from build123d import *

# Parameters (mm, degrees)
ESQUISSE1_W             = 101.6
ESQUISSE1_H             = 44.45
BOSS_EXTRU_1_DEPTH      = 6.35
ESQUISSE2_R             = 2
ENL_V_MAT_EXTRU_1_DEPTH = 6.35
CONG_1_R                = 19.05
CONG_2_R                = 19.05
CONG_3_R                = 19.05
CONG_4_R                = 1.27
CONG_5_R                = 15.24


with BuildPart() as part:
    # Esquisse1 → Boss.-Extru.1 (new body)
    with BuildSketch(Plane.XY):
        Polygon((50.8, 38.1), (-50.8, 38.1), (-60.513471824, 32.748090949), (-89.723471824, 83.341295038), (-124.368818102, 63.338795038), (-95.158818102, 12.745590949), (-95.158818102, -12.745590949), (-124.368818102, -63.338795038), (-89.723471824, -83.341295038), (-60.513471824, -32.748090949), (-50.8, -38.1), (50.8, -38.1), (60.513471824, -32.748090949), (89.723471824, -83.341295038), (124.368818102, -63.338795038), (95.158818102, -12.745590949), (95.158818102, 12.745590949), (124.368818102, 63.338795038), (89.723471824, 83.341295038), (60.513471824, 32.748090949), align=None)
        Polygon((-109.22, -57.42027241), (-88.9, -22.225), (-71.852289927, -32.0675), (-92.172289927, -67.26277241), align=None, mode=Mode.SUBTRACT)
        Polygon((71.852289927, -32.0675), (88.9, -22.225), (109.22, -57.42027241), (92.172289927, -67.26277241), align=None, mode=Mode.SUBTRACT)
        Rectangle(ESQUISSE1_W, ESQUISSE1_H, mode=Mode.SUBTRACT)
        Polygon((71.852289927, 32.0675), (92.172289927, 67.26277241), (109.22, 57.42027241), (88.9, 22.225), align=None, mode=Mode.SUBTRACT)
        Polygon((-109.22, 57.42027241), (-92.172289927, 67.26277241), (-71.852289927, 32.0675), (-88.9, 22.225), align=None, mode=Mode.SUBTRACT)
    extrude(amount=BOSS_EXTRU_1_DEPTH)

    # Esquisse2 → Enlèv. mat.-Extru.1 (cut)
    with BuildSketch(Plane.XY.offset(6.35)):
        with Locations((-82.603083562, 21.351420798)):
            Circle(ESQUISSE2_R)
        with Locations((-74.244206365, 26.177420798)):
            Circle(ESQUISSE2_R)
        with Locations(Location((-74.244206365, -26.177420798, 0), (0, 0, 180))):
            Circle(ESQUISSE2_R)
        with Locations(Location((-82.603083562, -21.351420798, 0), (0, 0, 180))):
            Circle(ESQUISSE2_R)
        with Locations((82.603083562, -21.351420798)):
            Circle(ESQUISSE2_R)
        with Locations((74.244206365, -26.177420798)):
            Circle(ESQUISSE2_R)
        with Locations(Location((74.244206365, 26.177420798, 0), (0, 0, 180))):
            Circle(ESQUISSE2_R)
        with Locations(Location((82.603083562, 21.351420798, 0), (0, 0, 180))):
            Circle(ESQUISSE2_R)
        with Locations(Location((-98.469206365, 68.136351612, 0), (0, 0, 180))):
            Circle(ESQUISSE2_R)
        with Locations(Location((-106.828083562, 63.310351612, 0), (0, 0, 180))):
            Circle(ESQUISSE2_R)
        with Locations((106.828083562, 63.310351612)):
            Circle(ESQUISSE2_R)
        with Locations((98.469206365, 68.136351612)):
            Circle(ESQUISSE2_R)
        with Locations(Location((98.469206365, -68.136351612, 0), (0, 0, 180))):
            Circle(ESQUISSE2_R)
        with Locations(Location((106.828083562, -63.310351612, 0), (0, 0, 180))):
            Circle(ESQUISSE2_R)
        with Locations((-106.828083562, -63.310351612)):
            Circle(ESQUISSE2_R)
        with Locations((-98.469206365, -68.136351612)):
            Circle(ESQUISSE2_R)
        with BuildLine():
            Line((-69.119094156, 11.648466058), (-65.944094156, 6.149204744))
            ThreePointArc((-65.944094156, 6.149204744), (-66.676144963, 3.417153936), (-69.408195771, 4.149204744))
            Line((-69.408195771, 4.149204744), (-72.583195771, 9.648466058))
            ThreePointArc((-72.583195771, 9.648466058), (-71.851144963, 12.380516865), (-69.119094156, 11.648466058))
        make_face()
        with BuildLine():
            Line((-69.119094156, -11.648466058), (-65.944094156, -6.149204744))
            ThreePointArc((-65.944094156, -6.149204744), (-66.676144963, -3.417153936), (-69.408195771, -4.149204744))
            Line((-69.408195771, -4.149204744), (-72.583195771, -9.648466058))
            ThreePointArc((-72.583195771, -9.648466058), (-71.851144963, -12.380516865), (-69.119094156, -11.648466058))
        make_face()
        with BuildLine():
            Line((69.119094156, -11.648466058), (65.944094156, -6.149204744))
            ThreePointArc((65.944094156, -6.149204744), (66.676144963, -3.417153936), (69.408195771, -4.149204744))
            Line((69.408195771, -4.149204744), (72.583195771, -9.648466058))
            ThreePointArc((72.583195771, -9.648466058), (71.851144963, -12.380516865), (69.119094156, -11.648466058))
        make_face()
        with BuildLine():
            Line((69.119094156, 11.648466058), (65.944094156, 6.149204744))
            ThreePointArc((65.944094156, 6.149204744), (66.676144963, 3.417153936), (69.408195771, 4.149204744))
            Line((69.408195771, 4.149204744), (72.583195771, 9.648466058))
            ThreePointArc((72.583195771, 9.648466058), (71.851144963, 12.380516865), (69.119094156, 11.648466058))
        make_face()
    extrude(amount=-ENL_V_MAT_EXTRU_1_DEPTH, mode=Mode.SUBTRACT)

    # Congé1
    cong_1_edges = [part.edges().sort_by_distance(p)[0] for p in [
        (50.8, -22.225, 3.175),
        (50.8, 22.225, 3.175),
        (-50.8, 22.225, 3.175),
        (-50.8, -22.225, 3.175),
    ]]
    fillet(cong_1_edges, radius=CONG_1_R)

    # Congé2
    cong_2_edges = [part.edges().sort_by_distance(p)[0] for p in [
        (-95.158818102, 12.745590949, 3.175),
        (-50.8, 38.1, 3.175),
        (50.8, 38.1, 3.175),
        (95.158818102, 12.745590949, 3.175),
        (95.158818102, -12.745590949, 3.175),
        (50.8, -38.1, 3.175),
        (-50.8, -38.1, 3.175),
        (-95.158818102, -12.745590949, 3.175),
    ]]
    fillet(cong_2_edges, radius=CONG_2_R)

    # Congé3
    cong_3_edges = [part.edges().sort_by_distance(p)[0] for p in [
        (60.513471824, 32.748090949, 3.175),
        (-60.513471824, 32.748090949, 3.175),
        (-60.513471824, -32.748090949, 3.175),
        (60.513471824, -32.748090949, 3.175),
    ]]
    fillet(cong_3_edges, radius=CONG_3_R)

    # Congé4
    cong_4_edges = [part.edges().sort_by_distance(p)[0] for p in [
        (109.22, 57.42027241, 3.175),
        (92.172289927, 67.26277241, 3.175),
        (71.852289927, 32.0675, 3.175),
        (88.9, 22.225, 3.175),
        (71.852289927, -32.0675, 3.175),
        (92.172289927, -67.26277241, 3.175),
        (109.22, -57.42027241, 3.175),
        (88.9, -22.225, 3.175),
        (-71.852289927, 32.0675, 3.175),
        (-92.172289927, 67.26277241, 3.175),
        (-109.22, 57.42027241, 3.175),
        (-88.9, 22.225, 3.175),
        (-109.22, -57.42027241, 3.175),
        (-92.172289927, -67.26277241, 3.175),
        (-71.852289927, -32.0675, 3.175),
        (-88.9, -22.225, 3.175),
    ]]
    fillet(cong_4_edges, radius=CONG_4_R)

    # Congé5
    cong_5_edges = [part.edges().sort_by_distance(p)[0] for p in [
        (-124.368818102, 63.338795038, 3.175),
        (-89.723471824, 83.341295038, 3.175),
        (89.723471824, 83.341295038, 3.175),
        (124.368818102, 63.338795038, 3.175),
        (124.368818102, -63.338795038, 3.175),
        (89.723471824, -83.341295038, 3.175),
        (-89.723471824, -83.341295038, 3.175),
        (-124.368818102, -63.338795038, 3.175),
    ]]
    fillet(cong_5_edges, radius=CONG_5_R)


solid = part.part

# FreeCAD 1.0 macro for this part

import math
import FreeCAD as App
import Part
import Sketcher

V = App.Vector
Q = App.Units.Quantity


def edges_at(feature, points):
    """Names of the edges that pass closest to the given points."""
    edges = feature.Shape.Edges
    near = lambda p: min(range(len(edges)), key=lambda i: edges[i].distToShape(Part.Vertex(*p))[0])
    return sorted({f"Edge{near(p) + 1}" for p in points})

doc = App.newDocument("Part")
body = doc.addObject("PartDesign::Body", "Body")

sketch1 = body.newObject("Sketcher::SketchObject", "Sketch")
sketch1.AttachmentSupport = (doc.getObject("XY_Plane"), [""])
sketch1.MapMode = "FlatFace"
sketch1.addGeometry(Part.LineSegment(V(50.8, 38.1, 0), V(-50.8, 38.1, 0)), False)
sketch1.addGeometry(Part.LineSegment(V(-50.8, 38.1, 0), V(-60.513472, 32.748091, 0)), False)
sketch1.addGeometry(Part.LineSegment(V(-60.513472, 32.748091, 0), V(-89.723472, 83.341295, 0)), False)
sketch1.addGeometry(Part.LineSegment(V(-89.723472, 83.341295, 0), V(-124.368818, 63.338795, 0)), False)
sketch1.addGeometry(Part.LineSegment(V(-124.368818, 63.338795, 0), V(-95.158818, 12.745591, 0)), False)
sketch1.addGeometry(Part.LineSegment(V(-95.158818, 12.745591, 0), V(-95.158818, -12.745591, 0)), False)
sketch1.addGeometry(Part.LineSegment(V(-95.158818, -12.745591, 0), V(-124.368818, -63.338795, 0)), False)
sketch1.addGeometry(Part.LineSegment(V(-124.368818, -63.338795, 0), V(-89.723472, -83.341295, 0)), False)
sketch1.addGeometry(Part.LineSegment(V(-89.723472, -83.341295, 0), V(-60.513472, -32.748091, 0)), False)
sketch1.addGeometry(Part.LineSegment(V(-60.513472, -32.748091, 0), V(-50.8, -38.1, 0)), False)
sketch1.addGeometry(Part.LineSegment(V(-50.8, -38.1, 0), V(50.8, -38.1, 0)), False)
sketch1.addGeometry(Part.LineSegment(V(50.8, -38.1, 0), V(60.513472, -32.748091, 0)), False)
sketch1.addGeometry(Part.LineSegment(V(60.513472, -32.748091, 0), V(89.723472, -83.341295, 0)), False)
sketch1.addGeometry(Part.LineSegment(V(89.723472, -83.341295, 0), V(124.368818, -63.338795, 0)), False)
sketch1.addGeometry(Part.LineSegment(V(124.368818, -63.338795, 0), V(95.158818, -12.745591, 0)), False)
sketch1.addGeometry(Part.LineSegment(V(95.158818, -12.745591, 0), V(95.158818, 12.745591, 0)), False)
sketch1.addGeometry(Part.LineSegment(V(95.158818, 12.745591, 0), V(124.368818, 63.338795, 0)), False)
sketch1.addGeometry(Part.LineSegment(V(124.368818, 63.338795, 0), V(89.723472, 83.341295, 0)), False)
sketch1.addGeometry(Part.LineSegment(V(89.723472, 83.341295, 0), V(60.513472, 32.748091, 0)), False)
sketch1.addGeometry(Part.LineSegment(V(60.513472, 32.748091, 0), V(50.8, 38.1, 0)), False)
sketch1.addGeometry(Part.LineSegment(V(-92.17229, -67.262772, 0), V(-109.22, -57.420272, 0)), False)
sketch1.addGeometry(Part.LineSegment(V(-109.22, -57.420272, 0), V(-88.9, -22.225, 0)), False)
sketch1.addGeometry(Part.LineSegment(V(-88.9, -22.225, 0), V(-71.85229, -32.0675, 0)), False)
sketch1.addGeometry(Part.LineSegment(V(-71.85229, -32.0675, 0), V(-92.17229, -67.262772, 0)), False)
sketch1.addGeometry(Part.LineSegment(V(92.17229, -67.262772, 0), V(71.85229, -32.0675, 0)), False)
sketch1.addGeometry(Part.LineSegment(V(71.85229, -32.0675, 0), V(88.9, -22.225, 0)), False)
sketch1.addGeometry(Part.LineSegment(V(88.9, -22.225, 0), V(109.22, -57.420272, 0)), False)
sketch1.addGeometry(Part.LineSegment(V(109.22, -57.420272, 0), V(92.17229, -67.262772, 0)), False)
sketch1.addGeometry(Part.LineSegment(V(-88.9, 22.225, 0), V(-109.22, 57.420272, 0)), False)
sketch1.addGeometry(Part.LineSegment(V(-109.22, 57.420272, 0), V(-92.17229, 67.262772, 0)), False)
sketch1.addGeometry(Part.LineSegment(V(-92.17229, 67.262772, 0), V(-71.85229, 32.0675, 0)), False)
sketch1.addGeometry(Part.LineSegment(V(-71.85229, 32.0675, 0), V(-88.9, 22.225, 0)), False)
sketch1.addGeometry(Part.LineSegment(V(50.8, -22.225, 0), V(-50.8, -22.225, 0)), False)
sketch1.addGeometry(Part.LineSegment(V(-50.8, -22.225, 0), V(-50.8, 22.225, 0)), False)
sketch1.addGeometry(Part.LineSegment(V(-50.8, 22.225, 0), V(50.8, 22.225, 0)), False)
sketch1.addGeometry(Part.LineSegment(V(50.8, 22.225, 0), V(50.8, -22.225, 0)), False)
sketch1.addGeometry(Part.LineSegment(V(88.9, 22.225, 0), V(71.85229, 32.0675, 0)), False)
sketch1.addGeometry(Part.LineSegment(V(71.85229, 32.0675, 0), V(92.17229, 67.262772, 0)), False)
sketch1.addGeometry(Part.LineSegment(V(92.17229, 67.262772, 0), V(109.22, 57.420272, 0)), False)
sketch1.addGeometry(Part.LineSegment(V(109.22, 57.420272, 0), V(88.9, 22.225, 0)), False)
sketch1.addConstraint(Sketcher.Constraint("Coincident", 0, 2, 1, 1))
sketch1.addConstraint(Sketcher.Constraint("Coincident", 1, 2, 2, 1))
sketch1.addConstraint(Sketcher.Constraint("Coincident", 2, 2, 3, 1))
sketch1.addConstraint(Sketcher.Constraint("Coincident", 3, 2, 4, 1))
sketch1.addConstraint(Sketcher.Constraint("Coincident", 4, 2, 5, 1))
sketch1.addConstraint(Sketcher.Constraint("Coincident", 5, 2, 6, 1))
sketch1.addConstraint(Sketcher.Constraint("Coincident", 6, 2, 7, 1))
sketch1.addConstraint(Sketcher.Constraint("Coincident", 7, 2, 8, 1))
sketch1.addConstraint(Sketcher.Constraint("Coincident", 8, 2, 9, 1))
sketch1.addConstraint(Sketcher.Constraint("Coincident", 9, 2, 10, 1))
sketch1.addConstraint(Sketcher.Constraint("Coincident", 10, 2, 11, 1))
sketch1.addConstraint(Sketcher.Constraint("Coincident", 11, 2, 12, 1))
sketch1.addConstraint(Sketcher.Constraint("Coincident", 12, 2, 13, 1))
sketch1.addConstraint(Sketcher.Constraint("Coincident", 13, 2, 14, 1))
sketch1.addConstraint(Sketcher.Constraint("Coincident", 14, 2, 15, 1))
sketch1.addConstraint(Sketcher.Constraint("Coincident", 15, 2, 16, 1))
sketch1.addConstraint(Sketcher.Constraint("Coincident", 16, 2, 17, 1))
sketch1.addConstraint(Sketcher.Constraint("Coincident", 17, 2, 18, 1))
sketch1.addConstraint(Sketcher.Constraint("Coincident", 18, 2, 19, 1))
sketch1.addConstraint(Sketcher.Constraint("Coincident", 19, 2, 0, 1))
sketch1.addConstraint(Sketcher.Constraint("Coincident", 20, 2, 21, 1))
sketch1.addConstraint(Sketcher.Constraint("Coincident", 21, 2, 22, 1))
sketch1.addConstraint(Sketcher.Constraint("Coincident", 22, 2, 23, 1))
sketch1.addConstraint(Sketcher.Constraint("Coincident", 23, 2, 20, 1))
sketch1.addConstraint(Sketcher.Constraint("Coincident", 24, 2, 25, 1))
sketch1.addConstraint(Sketcher.Constraint("Coincident", 25, 2, 26, 1))
sketch1.addConstraint(Sketcher.Constraint("Coincident", 26, 2, 27, 1))
sketch1.addConstraint(Sketcher.Constraint("Coincident", 27, 2, 24, 1))
sketch1.addConstraint(Sketcher.Constraint("Coincident", 28, 2, 29, 1))
sketch1.addConstraint(Sketcher.Constraint("Coincident", 29, 2, 30, 1))
sketch1.addConstraint(Sketcher.Constraint("Coincident", 30, 2, 31, 1))
sketch1.addConstraint(Sketcher.Constraint("Coincident", 31, 2, 28, 1))
sketch1.addConstraint(Sketcher.Constraint("Coincident", 32, 2, 33, 1))
sketch1.addConstraint(Sketcher.Constraint("Coincident", 33, 2, 34, 1))
sketch1.addConstraint(Sketcher.Constraint("Coincident", 34, 2, 35, 1))
sketch1.addConstraint(Sketcher.Constraint("Coincident", 35, 2, 32, 1))
sketch1.addConstraint(Sketcher.Constraint("Coincident", 36, 2, 37, 1))
sketch1.addConstraint(Sketcher.Constraint("Coincident", 37, 2, 38, 1))
sketch1.addConstraint(Sketcher.Constraint("Coincident", 38, 2, 39, 1))
sketch1.addConstraint(Sketcher.Constraint("Coincident", 39, 2, 36, 1))
sketch1.addConstraint(Sketcher.Constraint("Horizontal", 0))
sketch1.addConstraint(Sketcher.Constraint("Vertical", 5))
sketch1.addConstraint(Sketcher.Constraint("Horizontal", 10))
sketch1.addConstraint(Sketcher.Constraint("Vertical", 15))
sketch1.addConstraint(Sketcher.Constraint("Horizontal", 32))
sketch1.addConstraint(Sketcher.Constraint("Vertical", 33))
sketch1.addConstraint(Sketcher.Constraint("Horizontal", 34))
sketch1.addConstraint(Sketcher.Constraint("Vertical", 35))
sketch1.addConstraint(Sketcher.Constraint("Symmetric", 0, 2, 10, 2, -1, 1))
sketch1.addConstraint(Sketcher.Constraint("Symmetric", 1, 2, 11, 2, -1, 1))
sketch1.addConstraint(Sketcher.Constraint("Symmetric", 2, 2, 12, 2, -1, 1))
sketch1.addConstraint(Sketcher.Constraint("Symmetric", 3, 2, 13, 2, -1, 1))
sketch1.addConstraint(Sketcher.Constraint("Symmetric", 4, 2, 14, 2, -1, 1))
sketch1.addConstraint(Sketcher.Constraint("Symmetric", 6, 2, 16, 2, -1, 1))
sketch1.addConstraint(Sketcher.Constraint("Symmetric", 7, 2, 17, 2, -1, 1))
sketch1.addConstraint(Sketcher.Constraint("Symmetric", 8, 2, 18, 2, -1, 1))
sketch1.addConstraint(Sketcher.Constraint("Symmetric", 26, 2, 28, 2, -1, 1))
sketch1.addConstraint(Sketcher.Constraint("Symmetric", 27, 2, 29, 2, -1, 1))
sketch1.addConstraint(Sketcher.Constraint("Symmetric", 24, 2, 30, 2, -1, 1))
sketch1.addConstraint(Sketcher.Constraint("Symmetric", 25, 2, 31, 2, -1, 1))
sketch1.addConstraint(Sketcher.Constraint("Symmetric", 32, 2, 34, 2, -1, 1))
sketch1.addConstraint(Sketcher.Constraint("Symmetric", 22, 2, 36, 2, -1, 1))
sketch1.addConstraint(Sketcher.Constraint("Symmetric", 23, 2, 37, 2, -1, 1))
sketch1.addConstraint(Sketcher.Constraint("Symmetric", 20, 2, 38, 2, -1, 1))
sketch1.addConstraint(Sketcher.Constraint("Symmetric", 21, 2, 39, 2, -1, 1))
sketch1.addConstraint(Sketcher.Constraint("Symmetric", 8, 2, 11, 2, -2))
sketch1.addConstraint(Sketcher.Constraint("Symmetric", 7, 2, 12, 2, -2))
sketch1.addConstraint(Sketcher.Constraint("Symmetric", 6, 2, 13, 2, -2))
sketch1.addConstraint(Sketcher.Constraint("Symmetric", 22, 2, 24, 2, -2))
sketch1.addConstraint(Sketcher.Constraint("Symmetric", 21, 2, 25, 2, -2))
sketch1.addConstraint(Sketcher.Constraint("Symmetric", 20, 2, 26, 2, -2))
sketch1.addConstraint(Sketcher.Constraint("Symmetric", 23, 2, 27, 2, -2))
sketch1.addConstraint(Sketcher.Constraint("Perpendicular", 2, 3))
sketch1.addConstraint(Sketcher.Constraint("Perpendicular", 3, 4))
sketch1.addConstraint(Sketcher.Constraint("Perpendicular", 6, 7))
sketch1.addConstraint(Sketcher.Constraint("Parallel", 8, 16))
sketch1.addConstraint(Sketcher.Constraint("Parallel", 9, 19))
sketch1.addConstraint(Sketcher.Constraint("Perpendicular", 18, 20))
sketch1.addConstraint(Sketcher.Constraint("Perpendicular", 20, 21))
sketch1.addConstraint(Sketcher.Constraint("Perpendicular", 21, 22))
sketch1.addConstraint(Sketcher.Constraint("Perpendicular", 22, 23))
sketch1.addConstraint(Sketcher.Constraint("Horizontal", 25, 2, 32, 2))
sketch1.addConstraint(Sketcher.Constraint("Vertical", 0, 2, 9, 2))
sketch1.addConstraint(Sketcher.Constraint("Vertical", 9, 2, 32, 2))
sketch1.addConstraint(Sketcher.Constraint("Equal", 2, 4))
sketch1.addConstraint(Sketcher.Constraint("DistanceX", 0, 2, 0, 1, Q("4 in")))
sketch1.addConstraint(Sketcher.Constraint("Angle", 2, Q("120 deg")))
sketch1.addConstraint(Sketcher.Constraint("DistanceY", 10, 2, 0, 2, Q("3 in")))
sketch1.addConstraint(Sketcher.Constraint("Distance", 2, Q("2.3 in")))
sketch1.addConstraint(Sketcher.Constraint("Distance", 21, Q("1.6 in")))
sketch1.addConstraint(Sketcher.Constraint("DistanceY", 33, 1, 33, 2, Q("1.75 in")))
sketch1.addConstraint(Sketcher.Constraint("DistanceX", 20, 2, -1, 1, Q("4.3 in")))
sketch1.addConstraint(Sketcher.Constraint("Distance", 3, Q("1.575 in")))
sketch1.addConstraint(Sketcher.Constraint("Distance", 20, Q("0.775 in")))
sketch1.addConstraint(Sketcher.Constraint("DistanceY", 5, 2, 5, 1, Q("25.491182 mm")))
sketch1.addConstraint(Sketcher.Constraint("DistanceX", 1, 2, -1, 1, Q("60.513472 mm")))
pad1 = body.newObject("PartDesign::Pad", "Pad")
pad1.Profile = sketch1
pad1.Length = Q("0.25 in")

sketch2 = body.newObject("Sketcher::SketchObject", "Sketch001")
sketch2.AttachmentSupport = (doc.getObject("XY_Plane"), [""])
sketch2.MapMode = "FlatFace"
sketch2.AttachmentOffset = App.Placement(V(0, 0, 0.25 * 25.4), App.Rotation())
sketch2.addGeometry(Part.Circle(V(-82.603084, 21.351421, 0), V(0, 0, 1), 2), False)
sketch2.addGeometry(Part.Circle(V(-74.244206, 26.177421, 0), V(0, 0, 1), 2), False)
sketch2.addGeometry(Part.Circle(V(-74.244206, -26.177421, 0), V(0, 0, 1), 2), False)
sketch2.addGeometry(Part.Circle(V(-82.603084, -21.351421, 0), V(0, 0, 1), 2), False)
sketch2.addGeometry(Part.Circle(V(82.603084, -21.351421, 0), V(0, 0, 1), 2), False)
sketch2.addGeometry(Part.Circle(V(74.244206, -26.177421, 0), V(0, 0, 1), 2), False)
sketch2.addGeometry(Part.Circle(V(74.244206, 26.177421, 0), V(0, 0, 1), 2), False)
sketch2.addGeometry(Part.Circle(V(82.603084, 21.351421, 0), V(0, 0, 1), 2), False)
sketch2.addGeometry(Part.Circle(V(-98.469206, 68.136352, 0), V(0, 0, 1), 2), False)
sketch2.addGeometry(Part.Circle(V(-106.828084, 63.310352, 0), V(0, 0, 1), 2), False)
sketch2.addGeometry(Part.Circle(V(106.828084, 63.310352, 0), V(0, 0, 1), 2), False)
sketch2.addGeometry(Part.Circle(V(98.469206, 68.136352, 0), V(0, 0, 1), 2), False)
sketch2.addGeometry(Part.Circle(V(98.469206, -68.136352, 0), V(0, 0, 1), 2), False)
sketch2.addGeometry(Part.Circle(V(106.828084, -63.310352, 0), V(0, 0, 1), 2), False)
sketch2.addGeometry(Part.Circle(V(-106.828084, -63.310352, 0), V(0, 0, 1), 2), False)
sketch2.addGeometry(Part.Circle(V(-98.469206, -68.136352, 0), V(0, 0, 1), 2), False)
sketch2.addGeometry(Part.LineSegment(V(-65.944094, 6.149205, 0), V(-69.119094, 11.648466, 0)), False)
sketch2.addGeometry(Part.ArcOfCircle(Part.Circle(V(-70.851145, 10.648466, 0), V(0, 0, 1), 2), math.radians(30), math.radians(210)), False)
sketch2.addGeometry(Part.LineSegment(V(-72.583196, 9.648466, 0), V(-69.408196, 4.149205, 0)), False)
sketch2.addGeometry(Part.ArcOfCircle(Part.Circle(V(-67.676145, 5.149205, 0), V(0, 0, 1), 2), math.radians(-150), math.radians(30)), False)
sketch2.addGeometry(Part.LineSegment(V(-69.119094, -11.648466, 0), V(-65.944094, -6.149205, 0)), False)
sketch2.addGeometry(Part.ArcOfCircle(Part.Circle(V(-67.676145, -5.149205, 0), V(0, 0, 1), 2), math.radians(-30), math.radians(150)), False)
sketch2.addGeometry(Part.LineSegment(V(-69.408196, -4.149205, 0), V(-72.583196, -9.648466, 0)), False)
sketch2.addGeometry(Part.ArcOfCircle(Part.Circle(V(-70.851145, -10.648466, 0), V(0, 0, 1), 2), math.radians(150), math.radians(330)), False)
sketch2.addGeometry(Part.LineSegment(V(65.944094, -6.149205, 0), V(69.119094, -11.648466, 0)), False)
sketch2.addGeometry(Part.ArcOfCircle(Part.Circle(V(70.851145, -10.648466, 0), V(0, 0, 1), 2), math.radians(-150), math.radians(30)), False)
sketch2.addGeometry(Part.LineSegment(V(72.583196, -9.648466, 0), V(69.408196, -4.149205, 0)), False)
sketch2.addGeometry(Part.ArcOfCircle(Part.Circle(V(67.676145, -5.149205, 0), V(0, 0, 1), 2), math.radians(30), math.radians(210)), False)
sketch2.addGeometry(Part.LineSegment(V(69.119094, 11.648466, 0), V(65.944094, 6.149205, 0)), False)
sketch2.addGeometry(Part.ArcOfCircle(Part.Circle(V(67.676145, 5.149205, 0), V(0, 0, 1), 2), math.radians(150), math.radians(330)), False)
sketch2.addGeometry(Part.LineSegment(V(69.408196, 4.149205, 0), V(72.583196, 9.648466, 0)), False)
sketch2.addGeometry(Part.ArcOfCircle(Part.Circle(V(70.851145, 10.648466, 0), V(0, 0, 1), 2), math.radians(-30), math.radians(150)), False)
sketch2.addConstraint(Sketcher.Constraint("Tangent", 16, 2, 17, 1))
sketch2.addConstraint(Sketcher.Constraint("Tangent", 17, 2, 18, 1))
sketch2.addConstraint(Sketcher.Constraint("Tangent", 18, 2, 19, 1))
sketch2.addConstraint(Sketcher.Constraint("Tangent", 19, 2, 16, 1))
sketch2.addConstraint(Sketcher.Constraint("Tangent", 20, 2, 21, 1))
sketch2.addConstraint(Sketcher.Constraint("Tangent", 21, 2, 22, 1))
sketch2.addConstraint(Sketcher.Constraint("Tangent", 22, 2, 23, 1))
sketch2.addConstraint(Sketcher.Constraint("Tangent", 23, 2, 20, 1))
sketch2.addConstraint(Sketcher.Constraint("Tangent", 24, 2, 25, 1))
sketch2.addConstraint(Sketcher.Constraint("Tangent", 25, 2, 26, 1))
sketch2.addConstraint(Sketcher.Constraint("Tangent", 26, 2, 27, 1))
sketch2.addConstraint(Sketcher.Constraint("Tangent", 27, 2, 24, 1))
sketch2.addConstraint(Sketcher.Constraint("Tangent", 28, 2, 29, 1))
sketch2.addConstraint(Sketcher.Constraint("Tangent", 29, 2, 30, 1))
sketch2.addConstraint(Sketcher.Constraint("Tangent", 30, 2, 31, 1))
sketch2.addConstraint(Sketcher.Constraint("Tangent", 31, 2, 28, 1))
sketch2.addConstraint(Sketcher.Constraint("Equal", 0, 1))
sketch2.addConstraint(Sketcher.Constraint("Equal", 1, 2))
sketch2.addConstraint(Sketcher.Constraint("Equal", 2, 3))
sketch2.addConstraint(Sketcher.Constraint("Equal", 3, 4))
sketch2.addConstraint(Sketcher.Constraint("Equal", 4, 5))
sketch2.addConstraint(Sketcher.Constraint("Equal", 5, 6))
sketch2.addConstraint(Sketcher.Constraint("Equal", 6, 7))
sketch2.addConstraint(Sketcher.Constraint("Equal", 7, 8))
sketch2.addConstraint(Sketcher.Constraint("Equal", 8, 9))
sketch2.addConstraint(Sketcher.Constraint("Equal", 9, 10))
sketch2.addConstraint(Sketcher.Constraint("Equal", 10, 11))
sketch2.addConstraint(Sketcher.Constraint("Equal", 11, 12))
sketch2.addConstraint(Sketcher.Constraint("Equal", 12, 13))
sketch2.addConstraint(Sketcher.Constraint("Equal", 13, 14))
sketch2.addConstraint(Sketcher.Constraint("Equal", 14, 15))
sketch2.addConstraint(Sketcher.Constraint("Equal", 15, 17))
sketch2.addConstraint(Sketcher.Constraint("Equal", 17, 19))
sketch2.addConstraint(Sketcher.Constraint("Equal", 19, 21))
sketch2.addConstraint(Sketcher.Constraint("Equal", 21, 23))
sketch2.addConstraint(Sketcher.Constraint("Equal", 23, 25))
sketch2.addConstraint(Sketcher.Constraint("Equal", 25, 27))
sketch2.addConstraint(Sketcher.Constraint("Equal", 27, 29))
sketch2.addConstraint(Sketcher.Constraint("Equal", 29, 31))
sketch2.addConstraint(Sketcher.Constraint("Symmetric", 0, 3, 4, 3, -1, 1))
sketch2.addConstraint(Sketcher.Constraint("Symmetric", 1, 3, 5, 3, -1, 1))
sketch2.addConstraint(Sketcher.Constraint("Symmetric", 2, 3, 6, 3, -1, 1))
sketch2.addConstraint(Sketcher.Constraint("Symmetric", 3, 3, 7, 3, -1, 1))
sketch2.addConstraint(Sketcher.Constraint("Symmetric", 8, 3, 12, 3, -1, 1))
sketch2.addConstraint(Sketcher.Constraint("Symmetric", 9, 3, 13, 3, -1, 1))
sketch2.addConstraint(Sketcher.Constraint("Symmetric", 10, 3, 14, 3, -1, 1))
sketch2.addConstraint(Sketcher.Constraint("Symmetric", 11, 3, 15, 3, -1, 1))
sketch2.addConstraint(Sketcher.Constraint("Symmetric", 17, 3, 25, 3, -1, 1))
sketch2.addConstraint(Sketcher.Constraint("Symmetric", 19, 3, 27, 3, -1, 1))
sketch2.addConstraint(Sketcher.Constraint("Symmetric", 21, 3, 29, 3, -1, 1))
sketch2.addConstraint(Sketcher.Constraint("Symmetric", 23, 3, 31, 3, -1, 1))
sketch2.addConstraint(Sketcher.Constraint("Symmetric", 3, 3, 4, 3, -2))
sketch2.addConstraint(Sketcher.Constraint("Symmetric", 2, 3, 5, 3, -2))
sketch2.addConstraint(Sketcher.Constraint("Symmetric", 9, 3, 10, 3, -2))
sketch2.addConstraint(Sketcher.Constraint("Symmetric", 8, 3, 11, 3, -2))
sketch2.addConstraint(Sketcher.Constraint("Symmetric", 23, 3, 25, 3, -2))
sketch2.addConstraint(Sketcher.Constraint("Symmetric", 21, 3, 27, 3, -2))
sketch2.addConstraint(Sketcher.Constraint("Angle", 16, Q("120 deg")))
sketch2.addConstraint(Sketcher.Constraint("Distance", 16, Q("0.25 in")))
sketch2.addConstraint(Sketcher.Constraint("Diameter", 0, Q("4 mm")))
sketch2.addConstraint(Sketcher.Constraint("DistanceY", 0, 3, 1, 3, Q("0.19 in")))
sketch2.addConstraint(Sketcher.Constraint("DistanceY", 9, 3, 8, 3, Q("0.19 in")))
sketch2.addConstraint(Sketcher.Constraint("DistanceX", 8, 3, 1, 3, Q("24.225 mm")))
sketch2.addConstraint(Sketcher.Constraint("DistanceX", 9, 3, 0, 3, Q("24.225 mm")))
sketch2.addConstraint(Sketcher.Constraint("DistanceY", -1, 1, 0, 3, Q("21.351421 mm")))
sketch2.addConstraint(Sketcher.Constraint("DistanceY", -1, 1, 8, 3, Q("68.136352 mm")))
sketch2.addConstraint(Sketcher.Constraint("DistanceX", 2, 3, 4, 3, Q("156.84729 mm")))
sketch2.addConstraint(Sketcher.Constraint("DistanceX", 0, 3, 17, 3, Q("11.751939 mm")))
sketch2.addConstraint(Sketcher.Constraint("DistanceX", 1, 3, 17, 3, Q("3.393061 mm")))
sketch2.addConstraint(Sketcher.Constraint("DistanceY", 21, 3, 19, 3, Q("10.298409 mm")))
pocket1 = body.newObject("PartDesign::Pocket", "Pocket")
pocket1.Profile = sketch2
pocket1.Length = Q("0.25 in")
doc.recompute()

fillet = body.newObject("PartDesign::Fillet", "Fillet")
fillet.Base = (pocket1, edges_at(pocket1, [
    (50.8, -22.225, 3.175),
    (50.8, 22.225, 3.175),
    (-50.8, 22.225, 3.175),
    (-50.8, -22.225, 3.175),
]))
fillet.Radius = Q("0.75 in")
doc.recompute()

fillet2 = body.newObject("PartDesign::Fillet", "Fillet001")
fillet2.Base = (fillet, edges_at(fillet, [
    (-95.159, 12.746, 3.175),
    (-50.8, 38.1, 3.175),
    (50.8, 38.1, 3.175),
    (95.159, 12.746, 3.175),
    (95.159, -12.746, 3.175),
    (50.8, -38.1, 3.175),
    (-50.8, -38.1, 3.175),
    (-95.159, -12.746, 3.175),
]))
fillet2.Radius = Q("0.75 in")
doc.recompute()

fillet3 = body.newObject("PartDesign::Fillet", "Fillet002")
fillet3.Base = (fillet2, edges_at(fillet2, [
    (60.513, 32.748, 3.175),
    (-60.513, 32.748, 3.175),
    (-60.513, -32.748, 3.175),
    (60.513, -32.748, 3.175),
]))
fillet3.Radius = Q("0.75 in")
doc.recompute()

fillet4 = body.newObject("PartDesign::Fillet", "Fillet003")
fillet4.Base = (fillet3, edges_at(fillet3, [
    (109.22, 57.42, 3.175),
    (92.172, 67.263, 3.175),
    (71.852, 32.068, 3.175),
    (88.9, 22.225, 3.175),
    (71.852, -32.068, 3.175),
    (92.172, -67.263, 3.175),
    (109.22, -57.42, 3.175),
    (88.9, -22.225, 3.175),
    (-71.852, 32.068, 3.175),
    (-92.172, 67.263, 3.175),
    (-109.22, 57.42, 3.175),
    (-88.9, 22.225, 3.175),
    (-109.22, -57.42, 3.175),
    (-92.172, -67.263, 3.175),
    (-71.852, -32.068, 3.175),
    (-88.9, -22.225, 3.175),
]))
fillet4.Radius = Q("0.05 in")
doc.recompute()

fillet5 = body.newObject("PartDesign::Fillet", "Fillet004")
fillet5.Base = (fillet4, edges_at(fillet4, [
    (-124.369, 63.339, 3.175),
    (-89.723, 83.341, 3.175),
    (89.723, 83.341, 3.175),
    (124.369, 63.339, 3.175),
    (124.369, -63.339, 3.175),
    (89.723, -83.341, 3.175),
    (-89.723, -83.341, 3.175),
    (-124.369, -63.339, 3.175),
]))
fillet5.Radius = Q("0.6 in")

doc.recompute()
